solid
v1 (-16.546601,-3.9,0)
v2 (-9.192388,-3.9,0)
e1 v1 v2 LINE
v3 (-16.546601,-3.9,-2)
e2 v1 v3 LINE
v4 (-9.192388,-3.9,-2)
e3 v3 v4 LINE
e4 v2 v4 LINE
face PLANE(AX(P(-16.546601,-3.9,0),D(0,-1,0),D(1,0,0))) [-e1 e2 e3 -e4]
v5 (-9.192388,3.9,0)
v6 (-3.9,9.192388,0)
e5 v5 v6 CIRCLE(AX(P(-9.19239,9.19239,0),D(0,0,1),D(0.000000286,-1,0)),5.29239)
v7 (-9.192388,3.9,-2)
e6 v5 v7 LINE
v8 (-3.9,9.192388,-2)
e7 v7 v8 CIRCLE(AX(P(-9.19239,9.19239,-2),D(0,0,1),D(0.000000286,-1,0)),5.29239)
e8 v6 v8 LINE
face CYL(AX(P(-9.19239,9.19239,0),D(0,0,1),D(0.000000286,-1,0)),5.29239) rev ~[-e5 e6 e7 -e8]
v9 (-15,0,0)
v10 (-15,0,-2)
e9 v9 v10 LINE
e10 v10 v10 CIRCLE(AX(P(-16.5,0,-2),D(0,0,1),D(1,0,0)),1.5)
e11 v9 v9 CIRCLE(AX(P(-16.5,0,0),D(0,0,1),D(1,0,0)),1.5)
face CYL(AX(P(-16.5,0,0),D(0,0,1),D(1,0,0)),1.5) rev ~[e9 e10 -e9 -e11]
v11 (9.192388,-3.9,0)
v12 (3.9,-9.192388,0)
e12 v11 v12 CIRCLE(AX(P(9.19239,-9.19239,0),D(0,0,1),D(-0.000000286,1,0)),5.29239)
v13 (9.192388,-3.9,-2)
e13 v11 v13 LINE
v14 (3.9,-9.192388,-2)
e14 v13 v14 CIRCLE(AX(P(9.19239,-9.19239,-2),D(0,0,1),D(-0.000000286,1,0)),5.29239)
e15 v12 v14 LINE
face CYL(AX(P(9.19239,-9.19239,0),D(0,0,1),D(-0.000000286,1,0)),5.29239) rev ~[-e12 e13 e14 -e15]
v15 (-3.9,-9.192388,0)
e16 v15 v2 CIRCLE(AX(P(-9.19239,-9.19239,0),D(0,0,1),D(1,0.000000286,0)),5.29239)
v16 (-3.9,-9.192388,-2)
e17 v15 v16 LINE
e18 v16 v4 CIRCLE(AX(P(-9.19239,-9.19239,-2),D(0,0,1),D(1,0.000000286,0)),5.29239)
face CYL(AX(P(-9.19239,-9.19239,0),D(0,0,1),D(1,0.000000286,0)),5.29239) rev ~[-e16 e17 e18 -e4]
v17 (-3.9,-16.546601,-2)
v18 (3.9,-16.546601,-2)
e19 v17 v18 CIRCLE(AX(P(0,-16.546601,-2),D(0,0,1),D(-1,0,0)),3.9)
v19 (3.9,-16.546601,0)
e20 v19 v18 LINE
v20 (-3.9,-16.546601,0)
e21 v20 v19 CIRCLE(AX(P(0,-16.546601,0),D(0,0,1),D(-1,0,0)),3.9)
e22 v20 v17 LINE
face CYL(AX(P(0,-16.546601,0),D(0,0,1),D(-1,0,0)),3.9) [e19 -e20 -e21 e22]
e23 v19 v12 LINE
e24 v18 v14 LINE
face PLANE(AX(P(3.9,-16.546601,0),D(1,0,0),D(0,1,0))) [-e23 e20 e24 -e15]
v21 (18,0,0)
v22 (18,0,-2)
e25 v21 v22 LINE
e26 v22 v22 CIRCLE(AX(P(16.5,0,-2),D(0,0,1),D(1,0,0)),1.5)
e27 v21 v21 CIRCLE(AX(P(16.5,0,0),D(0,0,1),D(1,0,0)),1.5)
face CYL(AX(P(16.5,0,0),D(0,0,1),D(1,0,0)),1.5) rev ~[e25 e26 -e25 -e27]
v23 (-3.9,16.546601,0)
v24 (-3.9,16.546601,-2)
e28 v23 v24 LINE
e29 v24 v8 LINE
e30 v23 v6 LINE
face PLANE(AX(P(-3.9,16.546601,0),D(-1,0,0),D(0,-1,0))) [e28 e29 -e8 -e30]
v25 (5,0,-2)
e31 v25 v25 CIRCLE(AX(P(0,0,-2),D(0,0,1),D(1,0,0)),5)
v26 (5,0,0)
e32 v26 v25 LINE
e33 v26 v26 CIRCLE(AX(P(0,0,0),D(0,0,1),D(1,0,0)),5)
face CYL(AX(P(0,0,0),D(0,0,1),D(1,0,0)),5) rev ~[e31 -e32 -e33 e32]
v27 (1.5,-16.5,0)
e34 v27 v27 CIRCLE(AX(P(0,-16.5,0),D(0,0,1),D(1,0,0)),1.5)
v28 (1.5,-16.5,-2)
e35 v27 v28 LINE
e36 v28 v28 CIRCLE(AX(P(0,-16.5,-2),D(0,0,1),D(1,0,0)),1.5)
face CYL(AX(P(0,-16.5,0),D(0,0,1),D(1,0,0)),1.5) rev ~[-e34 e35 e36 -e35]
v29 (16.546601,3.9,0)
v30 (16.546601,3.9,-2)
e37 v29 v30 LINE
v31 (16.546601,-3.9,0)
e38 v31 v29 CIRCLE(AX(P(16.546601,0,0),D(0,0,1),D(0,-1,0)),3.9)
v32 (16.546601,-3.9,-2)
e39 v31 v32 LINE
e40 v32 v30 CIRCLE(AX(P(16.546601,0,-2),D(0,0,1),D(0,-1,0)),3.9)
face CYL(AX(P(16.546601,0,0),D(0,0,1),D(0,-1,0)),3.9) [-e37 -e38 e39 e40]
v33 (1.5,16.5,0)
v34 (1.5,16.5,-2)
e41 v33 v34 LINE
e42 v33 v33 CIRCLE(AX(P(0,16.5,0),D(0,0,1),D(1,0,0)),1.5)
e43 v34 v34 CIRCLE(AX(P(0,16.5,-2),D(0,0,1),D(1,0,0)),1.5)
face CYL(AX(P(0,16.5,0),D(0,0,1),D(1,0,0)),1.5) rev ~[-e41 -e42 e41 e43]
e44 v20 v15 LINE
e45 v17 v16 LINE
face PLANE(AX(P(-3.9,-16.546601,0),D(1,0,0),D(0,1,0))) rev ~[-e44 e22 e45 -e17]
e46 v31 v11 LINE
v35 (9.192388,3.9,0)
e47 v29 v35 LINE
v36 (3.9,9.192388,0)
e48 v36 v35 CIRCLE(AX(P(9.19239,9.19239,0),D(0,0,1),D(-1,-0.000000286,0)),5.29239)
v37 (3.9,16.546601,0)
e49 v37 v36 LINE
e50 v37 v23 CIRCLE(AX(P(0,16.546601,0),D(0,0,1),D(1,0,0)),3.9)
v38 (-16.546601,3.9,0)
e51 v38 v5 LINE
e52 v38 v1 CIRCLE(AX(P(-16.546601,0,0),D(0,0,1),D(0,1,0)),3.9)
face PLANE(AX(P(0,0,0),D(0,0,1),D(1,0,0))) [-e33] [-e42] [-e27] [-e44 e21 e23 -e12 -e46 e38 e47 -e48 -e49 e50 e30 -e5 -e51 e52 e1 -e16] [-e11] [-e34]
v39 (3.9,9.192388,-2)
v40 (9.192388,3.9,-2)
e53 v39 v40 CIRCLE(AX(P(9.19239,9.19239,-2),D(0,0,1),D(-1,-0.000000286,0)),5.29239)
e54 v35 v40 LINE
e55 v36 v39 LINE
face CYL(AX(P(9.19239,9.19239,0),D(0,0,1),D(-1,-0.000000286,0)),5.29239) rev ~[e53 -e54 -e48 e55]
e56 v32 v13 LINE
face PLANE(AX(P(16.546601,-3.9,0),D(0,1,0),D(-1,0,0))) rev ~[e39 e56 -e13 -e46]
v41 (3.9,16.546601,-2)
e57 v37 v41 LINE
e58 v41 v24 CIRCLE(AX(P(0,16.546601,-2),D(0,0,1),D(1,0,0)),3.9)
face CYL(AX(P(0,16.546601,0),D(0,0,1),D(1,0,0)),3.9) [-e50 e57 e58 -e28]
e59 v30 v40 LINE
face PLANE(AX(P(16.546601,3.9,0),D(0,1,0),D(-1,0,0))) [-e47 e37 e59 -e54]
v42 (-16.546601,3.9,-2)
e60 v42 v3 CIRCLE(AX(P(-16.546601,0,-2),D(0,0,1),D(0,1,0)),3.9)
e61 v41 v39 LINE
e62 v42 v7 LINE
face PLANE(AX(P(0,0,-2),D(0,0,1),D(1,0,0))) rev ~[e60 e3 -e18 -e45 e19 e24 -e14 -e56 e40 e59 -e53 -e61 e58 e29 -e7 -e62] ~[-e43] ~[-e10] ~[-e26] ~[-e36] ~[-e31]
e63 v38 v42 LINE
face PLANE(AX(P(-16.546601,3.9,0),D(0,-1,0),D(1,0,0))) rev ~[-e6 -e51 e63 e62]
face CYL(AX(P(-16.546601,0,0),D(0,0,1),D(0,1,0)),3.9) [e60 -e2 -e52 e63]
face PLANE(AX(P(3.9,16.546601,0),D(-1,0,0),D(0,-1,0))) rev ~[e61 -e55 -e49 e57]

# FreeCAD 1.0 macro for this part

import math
import FreeCAD as App
import Part
import Sketcher

V = App.Vector

doc = App.newDocument("Part")
params = doc.addObject("Spreadsheet::Sheet", "Params")
for row, (alias, value) in enumerate([
    ("sketch1_diameter", "3 mm"),
    ("sketch1_diameter2", "10 mm"),
    ("sketch1_radius", "3.9 mm"),
    ("pad1_length", "2 mm"),
], start=1):
    params.set(f"A{row}", alias)
    params.set(f"B{row}", "=" + value)
    params.setAlias(f"B{row}", alias)

body = doc.addObject("PartDesign::Body", "Body")

# Sketch on XY plane
sketch1 = body.newObject("Sketcher::SketchObject", "Sketch")
sketch1.AttachmentSupport = (doc.getObject("XY_Plane"), [""])
sketch1.MapMode = "FlatFace"
sketch1.addGeometry([
    Part.ArcOfCircle(Part.Circle(V(-16.546601, 0, 0), V(0, 0, 1), 3.9), math.radians(90), math.radians(270)),  # 0
    Part.LineSegment(V(-16.546601, -3.9, 0), V(-9.192388, -3.9, 0)),  # 1
    Part.ArcOfCircle(Part.Circle(V(-9.19239, -9.19239, 0), V(0, 0, 1), 5.29239), math.radians(0.000016), math.radians(89.999984)),  # 2
    Part.LineSegment(V(-3.9, -9.192388, 0), V(-3.9, -16.546601, 0)),  # 3
    Part.ArcOfCircle(Part.Circle(V(0, -16.546601, 0), V(0, 0, 1), 3.9), math.radians(180), math.radians(360)),  # 4
    Part.LineSegment(V(3.9, -16.546601, 0), V(3.9, -9.192388, 0)),  # 5
    Part.ArcOfCircle(Part.Circle(V(9.19239, -9.19239, 0), V(0, 0, 1), 5.29239), math.radians(90.000016), math.radians(179.999984)),  # 6
    Part.LineSegment(V(9.192388, -3.9, 0), V(16.546601, -3.9, 0)),  # 7
    Part.ArcOfCircle(Part.Circle(V(16.546601, 0, 0), V(0, 0, 1), 3.9), math.radians(-90), math.radians(90)),  # 8
    Part.LineSegment(V(16.546601, 3.9, 0), V(9.192388, 3.9, 0)),  # 9
    Part.ArcOfCircle(Part.Circle(V(9.19239, 9.19239, 0), V(0, 0, 1), 5.29239), math.radians(-179.999984), math.radians(-90.000016)),  # 10
    Part.LineSegment(V(3.9, 9.192388, 0), V(3.9, 16.546601, 0)),  # 11
    Part.ArcOfCircle(Part.Circle(V(0, 16.546601, 0), V(0, 0, 1), 3.9), math.radians(0), math.radians(180)),  # 12
    Part.LineSegment(V(-3.9, 16.546601, 0), V(-3.9, 9.192388, 0)),  # 13
    Part.ArcOfCircle(Part.Circle(V(-9.19239, 9.19239, 0), V(0, 0, 1), 5.29239), math.radians(-89.999984), math.radians(-0.000016)),  # 14
    Part.LineSegment(V(-9.192388, 3.9, 0), V(-16.546601, 3.9, 0)),  # 15
    Part.Circle(V(0, -16.5, 0), V(0, 0, 1), 1.5),  # 16
    Part.Circle(V(-16.5, 0, 0), V(0, 0, 1), 1.5),  # 17
    Part.Circle(V(0, 0, 0), V(0, 0, 1), 5),  # 18
    Part.Circle(V(16.5, 0, 0), V(0, 0, 1), 1.5),  # 19
    Part.Circle(V(0, 16.5, 0), V(0, 0, 1), 1.5),  # 20
], False)
sketch1.addConstraint([
    Sketcher.Constraint("Tangent", 0, 2, 1, 1),
    Sketcher.Constraint("Tangent", 1, 2, 2, 2),
    Sketcher.Constraint("Tangent", 2, 1, 3, 1),
    Sketcher.Constraint("Tangent", 3, 2, 4, 1),
    Sketcher.Constraint("Tangent", 4, 2, 5, 1),
    Sketcher.Constraint("Tangent", 5, 2, 6, 2),
    Sketcher.Constraint("Tangent", 6, 1, 7, 1),
    Sketcher.Constraint("Tangent", 7, 2, 8, 1),
    Sketcher.Constraint("Tangent", 8, 2, 9, 1),
    Sketcher.Constraint("Tangent", 9, 2, 10, 2),
    Sketcher.Constraint("Tangent", 10, 1, 11, 1),
    Sketcher.Constraint("Tangent", 11, 2, 12, 1),
    Sketcher.Constraint("Tangent", 12, 2, 13, 1),
    Sketcher.Constraint("Tangent", 13, 2, 14, 2),
    Sketcher.Constraint("Tangent", 14, 1, 15, 1),
    Sketcher.Constraint("Tangent", 15, 2, 0, 1),
    Sketcher.Constraint("Horizontal", 1),
    Sketcher.Constraint("Vertical", 3),
    Sketcher.Constraint("Vertical", 5),
    Sketcher.Constraint("Horizontal", 7),
    Sketcher.Constraint("Horizontal", 9),
    Sketcher.Constraint("Vertical", 11),
    Sketcher.Constraint("Vertical", 13),
    Sketcher.Constraint("Horizontal", 15),
    Sketcher.Constraint("Coincident", 18, 3, -1, 1),
    Sketcher.Constraint("Equal", 0, 4),
    Sketcher.Constraint("Equal", 2, 6),
    Sketcher.Constraint("Equal", 4, 8),
    Sketcher.Constraint("Equal", 6, 10),
    Sketcher.Constraint("Equal", 8, 12),
    Sketcher.Constraint("Equal", 10, 14),
    Sketcher.Constraint("Equal", 16, 17),
    Sketcher.Constraint("Equal", 17, 19),
    Sketcher.Constraint("Equal", 19, 20),
    Sketcher.Constraint("Symmetric", 0, 3, 8, 3, -1, 1),
    Sketcher.Constraint("Symmetric", 4, 3, 12, 3, -1, 1),
    Sketcher.Constraint("Symmetric", 17, 3, 19, 3, -1, 1),
    Sketcher.Constraint("Symmetric", 16, 3, 20, 3, -1, 1),
    Sketcher.Constraint("Symmetric", 2, 3, 6, 3, -2),
    Sketcher.Constraint("PointOnObject", 16, 3, -2),
    Sketcher.Constraint("PointOnObject", 17, 3, -1),
    Sketcher.Constraint("Equal", 15, 3),
    Sketcher.Constraint("Diameter", 16, 3.0),
    Sketcher.Constraint("Diameter", 18, 10.0),
    Sketcher.Constraint("Radius", 0, 3.9),
    Sketcher.Constraint("DistanceY", 16, 3, -1, 1, 16.5),
    Sketcher.Constraint("DistanceX", 17, 3, -1, 1, 16.5),
    Sketcher.Constraint("Radius", 2, 5.29239),
    Sketcher.Constraint("DistanceX", 0, 3, -1, 1, 16.546601),
])
sketch1.setExpression("Constraints[42]", "Params.sketch1_diameter")
sketch1.setExpression("Constraints[43]", "Params.sketch1_diameter2")
sketch1.setExpression("Constraints[44]", "Params.sketch1_radius")
pad1 = body.newObject("PartDesign::Pad", "Pad")
pad1.Profile = sketch1
pad1.setExpression("Length", "Params.pad1_length")
pad1.Reversed = True

doc.recompute()
